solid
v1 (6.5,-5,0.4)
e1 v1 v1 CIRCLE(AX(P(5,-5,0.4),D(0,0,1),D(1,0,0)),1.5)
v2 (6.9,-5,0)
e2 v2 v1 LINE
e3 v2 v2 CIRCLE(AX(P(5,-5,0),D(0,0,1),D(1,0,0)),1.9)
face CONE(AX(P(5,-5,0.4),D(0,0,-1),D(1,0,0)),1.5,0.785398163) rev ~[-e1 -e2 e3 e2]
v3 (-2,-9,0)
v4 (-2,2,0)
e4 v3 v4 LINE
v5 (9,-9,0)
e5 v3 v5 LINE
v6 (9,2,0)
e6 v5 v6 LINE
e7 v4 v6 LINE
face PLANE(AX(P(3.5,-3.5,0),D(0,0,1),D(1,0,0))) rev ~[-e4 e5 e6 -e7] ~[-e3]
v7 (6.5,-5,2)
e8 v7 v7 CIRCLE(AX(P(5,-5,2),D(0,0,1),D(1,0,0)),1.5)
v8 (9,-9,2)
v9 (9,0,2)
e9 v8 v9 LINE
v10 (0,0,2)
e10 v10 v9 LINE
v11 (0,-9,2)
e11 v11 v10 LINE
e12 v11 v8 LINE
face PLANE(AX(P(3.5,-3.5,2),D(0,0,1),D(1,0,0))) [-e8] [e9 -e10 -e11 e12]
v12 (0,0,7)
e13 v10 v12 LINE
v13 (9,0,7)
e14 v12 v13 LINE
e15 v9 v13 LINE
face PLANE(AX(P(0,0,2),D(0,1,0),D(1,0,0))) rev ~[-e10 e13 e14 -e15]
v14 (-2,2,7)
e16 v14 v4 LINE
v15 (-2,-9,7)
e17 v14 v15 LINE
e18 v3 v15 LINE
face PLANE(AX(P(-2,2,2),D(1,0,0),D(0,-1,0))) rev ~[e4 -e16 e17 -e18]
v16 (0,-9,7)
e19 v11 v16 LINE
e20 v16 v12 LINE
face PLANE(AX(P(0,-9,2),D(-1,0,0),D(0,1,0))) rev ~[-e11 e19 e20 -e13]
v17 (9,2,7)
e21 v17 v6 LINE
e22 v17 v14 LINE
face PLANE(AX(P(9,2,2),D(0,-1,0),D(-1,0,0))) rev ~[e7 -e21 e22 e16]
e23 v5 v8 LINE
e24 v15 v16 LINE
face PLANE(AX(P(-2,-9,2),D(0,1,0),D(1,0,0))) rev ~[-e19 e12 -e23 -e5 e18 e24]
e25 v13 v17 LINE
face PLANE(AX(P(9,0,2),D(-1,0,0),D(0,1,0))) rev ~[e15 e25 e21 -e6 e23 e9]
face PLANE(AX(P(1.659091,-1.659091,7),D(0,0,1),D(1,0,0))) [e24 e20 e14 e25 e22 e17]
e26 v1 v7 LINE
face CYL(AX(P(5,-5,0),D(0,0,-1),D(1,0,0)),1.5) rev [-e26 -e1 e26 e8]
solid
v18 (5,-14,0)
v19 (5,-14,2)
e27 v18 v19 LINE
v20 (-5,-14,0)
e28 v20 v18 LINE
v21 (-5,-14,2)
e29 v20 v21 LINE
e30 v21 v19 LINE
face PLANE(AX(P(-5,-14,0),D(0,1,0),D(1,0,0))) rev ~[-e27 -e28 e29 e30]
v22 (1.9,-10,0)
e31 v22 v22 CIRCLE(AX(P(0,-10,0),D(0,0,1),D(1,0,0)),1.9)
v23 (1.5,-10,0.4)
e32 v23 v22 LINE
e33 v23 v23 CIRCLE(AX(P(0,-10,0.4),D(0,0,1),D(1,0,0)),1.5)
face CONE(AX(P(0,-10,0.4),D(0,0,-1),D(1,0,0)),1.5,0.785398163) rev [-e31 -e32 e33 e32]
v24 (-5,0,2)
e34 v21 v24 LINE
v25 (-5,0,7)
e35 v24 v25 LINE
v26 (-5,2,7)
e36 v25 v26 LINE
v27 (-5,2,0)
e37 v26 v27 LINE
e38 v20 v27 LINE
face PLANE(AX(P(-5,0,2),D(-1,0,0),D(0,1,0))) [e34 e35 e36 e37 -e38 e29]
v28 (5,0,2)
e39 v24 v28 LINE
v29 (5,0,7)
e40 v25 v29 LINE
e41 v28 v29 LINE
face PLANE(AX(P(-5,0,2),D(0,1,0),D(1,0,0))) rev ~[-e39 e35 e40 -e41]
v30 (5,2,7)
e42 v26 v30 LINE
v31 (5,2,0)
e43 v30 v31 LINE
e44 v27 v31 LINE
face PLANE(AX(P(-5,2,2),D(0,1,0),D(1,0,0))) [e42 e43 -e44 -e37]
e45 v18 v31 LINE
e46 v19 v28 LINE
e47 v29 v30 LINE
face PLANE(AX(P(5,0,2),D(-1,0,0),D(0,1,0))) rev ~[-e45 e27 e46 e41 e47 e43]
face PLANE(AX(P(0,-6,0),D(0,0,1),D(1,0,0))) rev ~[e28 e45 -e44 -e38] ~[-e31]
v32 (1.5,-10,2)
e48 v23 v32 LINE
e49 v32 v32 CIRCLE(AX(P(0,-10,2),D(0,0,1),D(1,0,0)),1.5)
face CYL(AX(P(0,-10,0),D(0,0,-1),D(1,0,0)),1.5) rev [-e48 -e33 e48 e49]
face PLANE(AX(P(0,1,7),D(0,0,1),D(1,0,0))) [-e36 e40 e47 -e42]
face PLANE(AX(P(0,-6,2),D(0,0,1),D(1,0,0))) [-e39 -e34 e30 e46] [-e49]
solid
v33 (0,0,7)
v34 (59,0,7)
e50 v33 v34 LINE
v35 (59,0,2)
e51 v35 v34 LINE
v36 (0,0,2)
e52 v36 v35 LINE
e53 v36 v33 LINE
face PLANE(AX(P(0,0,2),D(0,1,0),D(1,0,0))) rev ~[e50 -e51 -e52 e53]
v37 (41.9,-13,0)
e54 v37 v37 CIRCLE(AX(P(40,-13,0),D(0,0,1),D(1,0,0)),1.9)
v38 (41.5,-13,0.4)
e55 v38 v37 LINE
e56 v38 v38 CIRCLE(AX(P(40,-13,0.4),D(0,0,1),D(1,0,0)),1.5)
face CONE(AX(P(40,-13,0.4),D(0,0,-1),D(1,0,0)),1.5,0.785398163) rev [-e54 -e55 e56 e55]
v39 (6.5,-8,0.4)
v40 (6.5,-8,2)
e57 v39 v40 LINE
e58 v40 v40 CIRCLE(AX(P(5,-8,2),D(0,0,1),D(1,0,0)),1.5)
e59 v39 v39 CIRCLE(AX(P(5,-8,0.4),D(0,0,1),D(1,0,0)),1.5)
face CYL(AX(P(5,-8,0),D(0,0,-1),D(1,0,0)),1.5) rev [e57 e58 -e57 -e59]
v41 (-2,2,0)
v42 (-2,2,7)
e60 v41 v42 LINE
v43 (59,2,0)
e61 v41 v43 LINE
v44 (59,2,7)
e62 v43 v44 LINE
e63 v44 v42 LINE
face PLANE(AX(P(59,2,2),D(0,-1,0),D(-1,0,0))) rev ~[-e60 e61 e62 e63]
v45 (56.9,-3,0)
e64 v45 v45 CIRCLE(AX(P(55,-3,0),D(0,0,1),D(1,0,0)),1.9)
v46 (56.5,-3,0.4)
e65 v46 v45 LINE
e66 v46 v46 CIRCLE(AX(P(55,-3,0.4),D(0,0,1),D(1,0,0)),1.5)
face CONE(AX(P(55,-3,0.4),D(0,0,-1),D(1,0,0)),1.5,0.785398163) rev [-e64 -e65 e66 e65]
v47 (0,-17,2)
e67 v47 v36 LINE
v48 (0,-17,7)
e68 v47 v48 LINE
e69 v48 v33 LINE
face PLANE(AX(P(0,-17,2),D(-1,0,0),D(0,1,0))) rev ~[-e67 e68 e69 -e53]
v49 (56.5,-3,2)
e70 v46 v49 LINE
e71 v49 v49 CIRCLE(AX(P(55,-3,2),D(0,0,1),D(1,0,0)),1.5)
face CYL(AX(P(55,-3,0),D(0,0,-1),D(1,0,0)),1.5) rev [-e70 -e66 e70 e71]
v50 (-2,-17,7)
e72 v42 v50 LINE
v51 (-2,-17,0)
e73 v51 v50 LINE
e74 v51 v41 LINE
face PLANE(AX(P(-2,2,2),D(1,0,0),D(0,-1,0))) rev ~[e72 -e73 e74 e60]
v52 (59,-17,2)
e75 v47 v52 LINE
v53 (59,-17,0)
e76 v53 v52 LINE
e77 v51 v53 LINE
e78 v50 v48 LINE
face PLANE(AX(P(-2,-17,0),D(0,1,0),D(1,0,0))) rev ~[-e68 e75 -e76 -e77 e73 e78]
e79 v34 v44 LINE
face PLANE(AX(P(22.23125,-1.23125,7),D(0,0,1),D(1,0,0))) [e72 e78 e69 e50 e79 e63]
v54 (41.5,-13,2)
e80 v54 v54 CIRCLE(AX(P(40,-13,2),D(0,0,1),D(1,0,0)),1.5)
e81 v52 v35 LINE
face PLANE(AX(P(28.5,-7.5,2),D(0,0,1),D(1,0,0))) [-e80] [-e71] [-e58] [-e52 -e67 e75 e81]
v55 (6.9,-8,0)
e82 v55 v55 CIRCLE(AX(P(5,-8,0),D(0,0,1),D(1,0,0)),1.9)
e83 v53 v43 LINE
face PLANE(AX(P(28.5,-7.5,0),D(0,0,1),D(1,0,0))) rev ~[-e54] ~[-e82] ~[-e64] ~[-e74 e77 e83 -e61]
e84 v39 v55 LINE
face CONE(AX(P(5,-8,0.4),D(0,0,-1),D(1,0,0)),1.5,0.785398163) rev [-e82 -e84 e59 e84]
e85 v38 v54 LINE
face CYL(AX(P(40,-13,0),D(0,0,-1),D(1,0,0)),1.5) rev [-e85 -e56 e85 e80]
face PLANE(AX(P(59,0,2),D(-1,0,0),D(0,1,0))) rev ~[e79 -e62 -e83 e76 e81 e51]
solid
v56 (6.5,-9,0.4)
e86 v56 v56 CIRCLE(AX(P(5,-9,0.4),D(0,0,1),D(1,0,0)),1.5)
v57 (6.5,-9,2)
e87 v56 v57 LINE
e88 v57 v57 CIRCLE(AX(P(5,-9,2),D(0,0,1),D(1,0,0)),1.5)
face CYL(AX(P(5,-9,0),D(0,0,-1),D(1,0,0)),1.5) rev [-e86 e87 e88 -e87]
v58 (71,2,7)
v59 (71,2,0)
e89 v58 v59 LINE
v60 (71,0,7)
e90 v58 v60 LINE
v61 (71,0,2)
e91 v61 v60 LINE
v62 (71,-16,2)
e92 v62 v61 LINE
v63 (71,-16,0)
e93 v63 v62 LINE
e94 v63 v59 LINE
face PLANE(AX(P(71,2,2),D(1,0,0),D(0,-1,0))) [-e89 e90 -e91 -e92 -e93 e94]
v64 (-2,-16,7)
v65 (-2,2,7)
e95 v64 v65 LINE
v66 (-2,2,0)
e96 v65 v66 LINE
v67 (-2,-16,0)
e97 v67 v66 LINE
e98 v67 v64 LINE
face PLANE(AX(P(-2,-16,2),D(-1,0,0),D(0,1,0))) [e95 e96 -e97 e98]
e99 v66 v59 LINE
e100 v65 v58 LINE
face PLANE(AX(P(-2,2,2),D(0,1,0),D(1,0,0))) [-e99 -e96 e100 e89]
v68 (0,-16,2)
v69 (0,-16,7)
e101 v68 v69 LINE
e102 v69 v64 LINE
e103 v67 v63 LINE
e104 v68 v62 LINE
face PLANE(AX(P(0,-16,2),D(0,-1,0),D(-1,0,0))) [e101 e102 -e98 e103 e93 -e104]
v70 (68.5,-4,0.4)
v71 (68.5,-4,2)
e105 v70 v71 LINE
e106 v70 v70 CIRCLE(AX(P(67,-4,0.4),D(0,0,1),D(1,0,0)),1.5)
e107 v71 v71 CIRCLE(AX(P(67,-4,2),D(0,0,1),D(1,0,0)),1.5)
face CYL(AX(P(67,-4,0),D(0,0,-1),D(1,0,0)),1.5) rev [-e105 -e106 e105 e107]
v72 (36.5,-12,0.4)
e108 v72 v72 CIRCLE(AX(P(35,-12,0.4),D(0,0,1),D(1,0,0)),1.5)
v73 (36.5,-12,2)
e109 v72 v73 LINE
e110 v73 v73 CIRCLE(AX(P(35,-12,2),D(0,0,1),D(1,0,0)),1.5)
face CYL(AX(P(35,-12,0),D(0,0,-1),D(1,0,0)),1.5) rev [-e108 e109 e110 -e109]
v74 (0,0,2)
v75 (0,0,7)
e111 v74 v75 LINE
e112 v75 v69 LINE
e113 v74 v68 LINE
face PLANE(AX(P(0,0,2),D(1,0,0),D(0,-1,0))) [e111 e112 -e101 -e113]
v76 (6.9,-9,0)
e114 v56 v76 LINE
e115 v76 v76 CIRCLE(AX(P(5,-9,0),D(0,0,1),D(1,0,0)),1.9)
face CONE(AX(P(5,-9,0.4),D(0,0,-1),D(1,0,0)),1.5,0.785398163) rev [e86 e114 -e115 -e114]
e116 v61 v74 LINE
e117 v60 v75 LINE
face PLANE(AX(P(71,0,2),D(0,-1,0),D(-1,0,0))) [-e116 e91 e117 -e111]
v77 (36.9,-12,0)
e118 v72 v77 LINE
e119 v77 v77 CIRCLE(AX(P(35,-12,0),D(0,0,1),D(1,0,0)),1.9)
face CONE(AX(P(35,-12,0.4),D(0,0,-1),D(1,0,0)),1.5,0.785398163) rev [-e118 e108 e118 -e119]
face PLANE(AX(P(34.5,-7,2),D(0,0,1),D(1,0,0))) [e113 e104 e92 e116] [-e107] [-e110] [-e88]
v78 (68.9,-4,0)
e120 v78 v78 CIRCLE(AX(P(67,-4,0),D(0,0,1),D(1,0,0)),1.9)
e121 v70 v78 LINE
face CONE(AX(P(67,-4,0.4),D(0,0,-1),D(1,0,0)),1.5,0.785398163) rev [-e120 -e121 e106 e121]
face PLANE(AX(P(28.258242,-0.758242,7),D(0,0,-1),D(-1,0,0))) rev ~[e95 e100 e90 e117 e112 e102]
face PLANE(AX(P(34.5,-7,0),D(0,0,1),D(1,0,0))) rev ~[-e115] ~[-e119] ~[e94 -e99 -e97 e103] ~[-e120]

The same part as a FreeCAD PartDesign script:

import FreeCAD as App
import Part
import Sketcher


def edges_at(feature, points):
    """Names of the edges that pass closest to the given points."""
    edges = feature.Shape.Edges
    near = lambda p: min(range(len(edges)), key=lambda i: edges[i].distToShape(Part.Vertex(*p))[0])
    return sorted({f"Edge{near(p) + 1}" for p in points})


def add_polygon(sketch, points):
    """Adds a closed chain of lines whose ends are joined by coincident constraints."""
    first, n = sketch.GeometryCount, len(points)
    for a, b in zip(points, points[1:] + points[:1]):
        sketch.addGeometry(Part.LineSegment(App.Vector(*a, 0), App.Vector(*b, 0)), False)
    for i in range(n):
        sketch.addConstraint(Sketcher.Constraint("Coincident", first + i, 2, first + (i + 1) % n, 1))

doc = App.newDocument("Part")
body = doc.addObject("PartDesign::Body", "Body")

# Sketch on XY plane
sketch1 = body.newObject("Sketcher::SketchObject", "Sketch")
sketch1.AttachmentSupport = (doc.getObject("XY_Plane"), [""])
sketch1.MapMode = "FlatFace"
add_polygon(sketch1, [(-2, 2), (-2, -17), (59, -17), (59, 2)])  # lines 0-3
sketch1.addGeometry(Part.Circle(App.Vector(40, -13, 0), App.Vector(0, 0, 1), 1.5), False)  # 4
sketch1.addGeometry(Part.Circle(App.Vector(5, -8, 0), App.Vector(0, 0, 1), 1.5), False)  # 5
sketch1.addGeometry(Part.Circle(App.Vector(55, -3, 0), App.Vector(0, 0, 1), 1.5), False)  # 6
sketch1.addConstraint([
    Sketcher.Constraint("Vertical", 0),
    Sketcher.Constraint("Horizontal", 1),
    Sketcher.Constraint("Vertical", 2),
    Sketcher.Constraint("Horizontal", 3),
    Sketcher.Constraint("Equal", 4, 5),
    Sketcher.Constraint("Equal", 5, 6),
    Sketcher.Constraint("Diameter", 4, 3.0),
    Sketcher.Constraint("DistanceX", 1, 1, 1, 2, 61.0),
    Sketcher.Constraint("DistanceY", 0, 2, 0, 1, 19.0),
    Sketcher.Constraint("DistanceX", -1, 1, 4, 3, 40.0),
    Sketcher.Constraint("DistanceY", 4, 3, -1, 1, 13.0),
    Sketcher.Constraint("DistanceX", -1, 1, 5, 3, 5.0),
    Sketcher.Constraint("DistanceY", 5, 3, -1, 1, 8.0),
    Sketcher.Constraint("DistanceX", -1, 1, 6, 3, 55.0),
    Sketcher.Constraint("DistanceY", 6, 3, -1, 1, 3.0),
    Sketcher.Constraint("DistanceX", 0, 2, -1, 1, 2.0),
    Sketcher.Constraint("DistanceY", 0, 2, -1, 1, 17.0),
])
pad1 = body.newObject("PartDesign::Pad", "Pad")
pad1.Profile = sketch1
pad1.Length = 2

# Sketch on XY plane
sketch2 = body.newObject("Sketcher::SketchObject", "Sketch001")
sketch2.AttachmentSupport = (doc.getObject("XY_Plane"), [""])
sketch2.MapMode = "FlatFace"
sketch2.AttachmentOffset = App.Placement(App.Vector(0, 0, 2), App.Rotation())
add_polygon(sketch2, [(59, 0), (59, 2), (-2, 2), (-2, -17), (0, -17), (0, 0)])  # lines 0-5
sketch2.addConstraint([
    Sketcher.Constraint("Vertical", 0),
    Sketcher.Constraint("Horizontal", 1),
    Sketcher.Constraint("Vertical", 2),
    Sketcher.Constraint("Horizontal", 3),
    Sketcher.Constraint("Vertical", 4),
    Sketcher.Constraint("Horizontal", 5),
    Sketcher.Constraint("Coincident", 4, 2, -1, 1),
    Sketcher.Constraint("Equal", 3, 0),
    Sketcher.Constraint("DistanceX", 1, 2, 1, 1, 61.0),
    Sketcher.Constraint("DistanceX", 3, 1, 3, 2, 2.0),
    Sketcher.Constraint("DistanceY", 2, 2, 2, 1, 19.0),
])
pad2 = body.newObject("PartDesign::Pad", "Pad001")
pad2.Profile = sketch2
pad2.Length = 5
doc.recompute()

chamfer = body.newObject("PartDesign::Chamfer", "Chamfer")
chamfer.Base = (pad2, edges_at(pad2, [(3.5, -8, 0), (38.5, -13, 0), (53.5, -3, 0)]))
chamfer.Size = 0.4
body2 = doc.addObject("PartDesign::Body", "Body001")

# Sketch on XY plane
sketch3 = body2.newObject("Sketcher::SketchObject", "Sketch002")
sketch3.AttachmentSupport = (doc.getObject("XY_Plane001"), [""])
sketch3.MapMode = "FlatFace"
add_polygon(sketch3, [(-2, 2), (-2, -16), (71, -16), (71, 2)])  # lines 0-3
sketch3.addGeometry(Part.Circle(App.Vector(35, -12, 0), App.Vector(0, 0, 1), 1.5), False)  # 4
sketch3.addGeometry(Part.Circle(App.Vector(5, -9, 0), App.Vector(0, 0, 1), 1.5), False)  # 5
sketch3.addGeometry(Part.Circle(App.Vector(67, -4, 0), App.Vector(0, 0, 1), 1.5), False)  # 6
sketch3.addConstraint([
    Sketcher.Constraint("Vertical", 0),
    Sketcher.Constraint("Horizontal", 1),
    Sketcher.Constraint("Vertical", 2),
    Sketcher.Constraint("Horizontal", 3),
    Sketcher.Constraint("Equal", 4, 5),
    Sketcher.Constraint("Equal", 5, 6),
    Sketcher.Constraint("Diameter", 4, 3.0),
    Sketcher.Constraint("DistanceX", 1, 1, 1, 2, 73.0),
    Sketcher.Constraint("DistanceY", 0, 2, 0, 1, 18.0),
    Sketcher.Constraint("DistanceX", -1, 1, 4, 3, 35.0),
    Sketcher.Constraint("DistanceY", 4, 3, -1, 1, 12.0),
    Sketcher.Constraint("DistanceX", -1, 1, 5, 3, 5.0),
    Sketcher.Constraint("DistanceY", 5, 3, -1, 1, 9.0),
    Sketcher.Constraint("DistanceX", -1, 1, 6, 3, 67.0),
    Sketcher.Constraint("DistanceY", 6, 3, -1, 1, 4.0),
    Sketcher.Constraint("DistanceX", 0, 2, -1, 1, 2.0),
    Sketcher.Constraint("DistanceY", 0, 2, -1, 1, 16.0),
])
pad3 = body2.newObject("PartDesign::Pad", "Pad002")
pad3.Profile = sketch3
pad3.Length = 2

# Sketch on XY plane
sketch4 = body2.newObject("Sketcher::SketchObject", "Sketch003")
sketch4.AttachmentSupport = (doc.getObject("XY_Plane001"), [""])
sketch4.MapMode = "FlatFace"
sketch4.AttachmentOffset = App.Placement(App.Vector(0, 0, 2), App.Rotation())
add_polygon(sketch4, [(-2, 2), (-2, -16), (0, -16), (0, 0), (71, 0), (71, 2)])  # lines 0-5
sketch4.addConstraint([
    Sketcher.Constraint("Vertical", 0),
    Sketcher.Constraint("Horizontal", 1),
    Sketcher.Constraint("Vertical", 2),
    Sketcher.Constraint("Horizontal", 3),
    Sketcher.Constraint("Vertical", 4),
    Sketcher.Constraint("Horizontal", 5),
    Sketcher.Constraint("Coincident", 2, 2, -1, 1),
    Sketcher.Constraint("Equal", 1, 4),
    Sketcher.Constraint("DistanceX", 1, 1, 1, 2, 2.0),
    Sketcher.Constraint("DistanceX", 3, 1, 3, 2, 71.0),
    Sketcher.Constraint("DistanceY", 0, 2, 0, 1, 18.0),
])
pad4 = body2.newObject("PartDesign::Pad", "Pad003")
pad4.Profile = sketch4
pad4.Length = 5
doc.recompute()

chamfer2 = body2.newObject("PartDesign::Chamfer", "Chamfer001")
chamfer2.Base = (pad4, edges_at(pad4, [(3.5, -9, 0), (33.5, -12, 0), (65.5, -4, 0)]))
chamfer2.Size = 0.4
body3 = doc.addObject("PartDesign::Body", "Body002")

# Sketch on XY plane
sketch5 = body3.newObject("Sketcher::SketchObject", "Sketch004")
sketch5.AttachmentSupport = (doc.getObject("XY_Plane002"), [""])
sketch5.MapMode = "FlatFace"
add_polygon(sketch5, [(-2, 2), (-2, -9), (9, -9), (9, 2)])  # lines 0-3
sketch5.addGeometry(Part.Circle(App.Vector(5, -5, 0), App.Vector(0, 0, 1), 1.5), False)  # 4
sketch5.addConstraint([
    Sketcher.Constraint("Vertical", 0),
    Sketcher.Constraint("Horizontal", 1),
    Sketcher.Constraint("Vertical", 2),
    Sketcher.Constraint("Horizontal", 3),
    Sketcher.Constraint("Equal", 3, 0),
    Sketcher.Constraint("Diameter", 4, 3.0),
    Sketcher.Constraint("DistanceX", 1, 1, 1, 2, 11.0),
    Sketcher.Constraint("DistanceX", -1, 1, 4, 3, 5.0),
    Sketcher.Constraint("DistanceY", 4, 3, -1, 1, 5.0),
    Sketcher.Constraint("DistanceX", 0, 2, -1, 1, 2.0),
    Sketcher.Constraint("DistanceY", 0, 2, -1, 1, 9.0),
])
pad5 = body3.newObject("PartDesign::Pad", "Pad004")
pad5.Profile = sketch5
pad5.Length = 2

# Sketch on XY plane
sketch6 = body3.newObject("Sketcher::SketchObject", "Sketch005")
sketch6.AttachmentSupport = (doc.getObject("XY_Plane002"), [""])
sketch6.MapMode = "FlatFace"
sketch6.AttachmentOffset = App.Placement(App.Vector(0, 0, 2), App.Rotation())
add_polygon(sketch6, [(-2, 2), (-2, -9), (0, -9), (0, 0), (9, 0), (9, 2)])  # lines 0-5
sketch6.addConstraint([
    Sketcher.Constraint("Vertical", 0),
    Sketcher.Constraint("Horizontal", 1),
    Sketcher.Constraint("Vertical", 2),
    Sketcher.Constraint("Horizontal", 3),
    Sketcher.Constraint("Vertical", 4),
    Sketcher.Constraint("Horizontal", 5),
    Sketcher.Constraint("Coincident", 2, 2, -1, 1),
    Sketcher.Constraint("Equal", 5, 0),
    Sketcher.Constraint("Equal", 3, 2),
    Sketcher.Constraint("DistanceX", 1, 1, 1, 2, 2.0),
    Sketcher.Constraint("DistanceX", 3, 1, 3, 2, 9.0),
])
pad6 = body3.newObject("PartDesign::Pad", "Pad005")
pad6.Profile = sketch6
pad6.Length = 5
doc.recompute()

chamfer3 = body3.newObject("PartDesign::Chamfer", "Chamfer002")
chamfer3.Base = (pad6, edges_at(pad6, [(3.5, -5, 0)]))
chamfer3.Size = 0.4
body4 = doc.addObject("PartDesign::Body", "Body003")

# Sketch on XY plane
sketch7 = body4.newObject("Sketcher::SketchObject", "Sketch006")
sketch7.AttachmentSupport = (doc.getObject("XY_Plane003"), [""])
sketch7.MapMode = "FlatFace"
add_polygon(sketch7, [(-5, 2), (-5, -14), (5, -14), (5, 2)])  # lines 0-3
sketch7.addGeometry(Part.Circle(App.Vector(0, -10, 0), App.Vector(0, 0, 1), 1.5), False)  # 4
sketch7.addConstraint([
    Sketcher.Constraint("Vertical", 0),
    Sketcher.Constraint("Horizontal", 1),
    Sketcher.Constraint("Vertical", 2),
    Sketcher.Constraint("Horizontal", 3),
    Sketcher.Constraint("PointOnObject", 4, 3, -2),
    Sketcher.Constraint("Diameter", 4, 3.0),
    Sketcher.Constraint("DistanceX", 1, 1, 1, 2, 10.0),
    Sketcher.Constraint("DistanceY", 0, 2, 0, 1, 16.0),
    Sketcher.Constraint("DistanceY", 4, 3, -1, 1, 10.0),
    Sketcher.Constraint("DistanceX", 0, 2, -1, 1, 5.0),
    Sketcher.Constraint("DistanceY", 0, 2, -1, 1, 14.0),
])
pad7 = body4.newObject("PartDesign::Pad", "Pad006")
pad7.Profile = sketch7
pad7.Length = 2

# Sketch on XY plane
sketch8 = body4.newObject("Sketcher::SketchObject", "Sketch007")
sketch8.AttachmentSupport = (doc.getObject("XY_Plane003"), [""])
sketch8.MapMode = "FlatFace"
sketch8.AttachmentOffset = App.Placement(App.Vector(0, 0, 2), App.Rotation())
add_polygon(sketch8, [(-5, 2), (-5, 0), (5, 0), (5, 2)])  # lines 0-3
sketch8.addConstraint([
    Sketcher.Constraint("Vertical", 0),
    Sketcher.Constraint("Horizontal", 1),
    Sketcher.Constraint("Vertical", 2),
    Sketcher.Constraint("Horizontal", 3),
    Sketcher.Constraint("Symmetric", 0, 2, 1, 2, -1, 1),
    Sketcher.Constraint("DistanceX", 1, 1, 1, 2, 10.0),
    Sketcher.Constraint("DistanceY", 0, 2, 0, 1, 2.0),
])
pad8 = body4.newObject("PartDesign::Pad", "Pad007")
pad8.Profile = sketch8
pad8.Length = 5
doc.recompute()

chamfer4 = body4.newObject("PartDesign::Chamfer", "Chamfer003")
chamfer4.Base = (pad8, edges_at(pad8, [(-1.5, -10, 0)]))
chamfer4.Size = 0.4

doc.recompute()
